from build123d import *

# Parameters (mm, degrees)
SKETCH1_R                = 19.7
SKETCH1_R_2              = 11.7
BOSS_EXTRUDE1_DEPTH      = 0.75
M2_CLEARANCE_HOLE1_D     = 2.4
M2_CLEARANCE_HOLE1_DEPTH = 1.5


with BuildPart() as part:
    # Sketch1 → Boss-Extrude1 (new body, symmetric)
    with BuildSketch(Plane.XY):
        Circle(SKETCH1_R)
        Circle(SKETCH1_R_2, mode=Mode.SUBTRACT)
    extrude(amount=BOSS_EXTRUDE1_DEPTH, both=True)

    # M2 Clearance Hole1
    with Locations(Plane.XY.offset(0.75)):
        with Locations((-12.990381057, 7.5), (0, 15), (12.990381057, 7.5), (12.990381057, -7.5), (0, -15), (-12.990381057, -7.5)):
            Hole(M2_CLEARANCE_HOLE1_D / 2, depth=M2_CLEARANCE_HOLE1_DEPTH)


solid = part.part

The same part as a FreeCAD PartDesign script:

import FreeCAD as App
import Part
import Sketcher

V = App.Vector
Q = App.Units.Quantity

doc = App.newDocument("Part")
body = doc.addObject("PartDesign::Body", "Body")

sketch1 = body.newObject("Sketcher::SketchObject", "Sketch")
sketch1.AttachmentSupport = (doc.getObject("XY_Plane"), [""])
sketch1.MapMode = "FlatFace"
sketch1.addGeometry([
    Part.Circle(V(0, 0, 0), V(0, 0, 1), 19.7),
    Part.Circle(V(0, 0, 0), V(0, 0, 1), 11.7),
], False)
sketch1.addConstraint([
    Sketcher.Constraint("Coincident", 0, 3, -1, 1),
    Sketcher.Constraint("Coincident", 1, 3, -1, 1),
    Sketcher.Constraint("Diameter", 0, Q("39.4 mm")),
    Sketcher.Constraint("Diameter", 1, Q("23.4 mm")),
])
pad1 = body.newObject("PartDesign::Pad", "Pad")
pad1.Profile = sketch1
pad1.Length = 1.5
pad1.Midplane = True

sketch2 = body.newObject("Sketcher::SketchObject", "Sketch001")
sketch2.AttachmentSupport = (doc.getObject("XY_Plane"), [""])
sketch2.MapMode = "FlatFace"
sketch2.AttachmentOffset = App.Placement(V(0, 0, 0.75), App.Rotation())
sketch2.addGeometry([
    Part.Circle(V(-12.990381, 7.5, 0), V(0, 0, 1), 1.2),
    Part.Circle(V(0, 15, 0), V(0, 0, 1), 1.2),
    Part.Circle(V(12.990381, 7.5, 0), V(0, 0, 1), 1.2),
    Part.Circle(V(12.990381, -7.5, 0), V(0, 0, 1), 1.2),
    Part.Circle(V(0, -15, 0), V(0, 0, 1), 1.2),
    Part.Circle(V(-12.990381, -7.5, 0), V(0, 0, 1), 1.2),
], False)
sketch2.addConstraint([
    Sketcher.Constraint("Equal", 0, 1),
    Sketcher.Constraint("Equal", 1, 2),
    Sketcher.Constraint("Equal", 2, 3),
    Sketcher.Constraint("Equal", 3, 4),
    Sketcher.Constraint("Equal", 4, 5),
    Sketcher.Constraint("Symmetric", 0, 3, 3, 3, -1, 1),
    Sketcher.Constraint("Symmetric", 1, 3, 4, 3, -1, 1),
    Sketcher.Constraint("Symmetric", 2, 3, 5, 3, -1, 1),
    Sketcher.Constraint("Symmetric", 0, 3, 2, 3, -2),
    Sketcher.Constraint("PointOnObject", 1, 3, -2),
    Sketcher.Constraint("Diameter", 0, Q("2.4 mm")),
    Sketcher.Constraint("DistanceY", -1, 1, 1, 3, Q("15 mm")),
    Sketcher.Constraint("DistanceY", 3, 3, 2, 3, Q("15 mm")),
    Sketcher.Constraint("DistanceX", 0, 3, -1, 1, Q("12.990381 mm")),
])
doc.recompute()
hole = body.newObject("PartDesign::Hole", "Hole")
hole.Profile = sketch2
hole.ThreadType = "None"
hole.Diameter = 2.4
hole.DepthType = "Dimension"
hole.Depth = 1.5
hole.DrillPoint = "Flat"

doc.recompute()
